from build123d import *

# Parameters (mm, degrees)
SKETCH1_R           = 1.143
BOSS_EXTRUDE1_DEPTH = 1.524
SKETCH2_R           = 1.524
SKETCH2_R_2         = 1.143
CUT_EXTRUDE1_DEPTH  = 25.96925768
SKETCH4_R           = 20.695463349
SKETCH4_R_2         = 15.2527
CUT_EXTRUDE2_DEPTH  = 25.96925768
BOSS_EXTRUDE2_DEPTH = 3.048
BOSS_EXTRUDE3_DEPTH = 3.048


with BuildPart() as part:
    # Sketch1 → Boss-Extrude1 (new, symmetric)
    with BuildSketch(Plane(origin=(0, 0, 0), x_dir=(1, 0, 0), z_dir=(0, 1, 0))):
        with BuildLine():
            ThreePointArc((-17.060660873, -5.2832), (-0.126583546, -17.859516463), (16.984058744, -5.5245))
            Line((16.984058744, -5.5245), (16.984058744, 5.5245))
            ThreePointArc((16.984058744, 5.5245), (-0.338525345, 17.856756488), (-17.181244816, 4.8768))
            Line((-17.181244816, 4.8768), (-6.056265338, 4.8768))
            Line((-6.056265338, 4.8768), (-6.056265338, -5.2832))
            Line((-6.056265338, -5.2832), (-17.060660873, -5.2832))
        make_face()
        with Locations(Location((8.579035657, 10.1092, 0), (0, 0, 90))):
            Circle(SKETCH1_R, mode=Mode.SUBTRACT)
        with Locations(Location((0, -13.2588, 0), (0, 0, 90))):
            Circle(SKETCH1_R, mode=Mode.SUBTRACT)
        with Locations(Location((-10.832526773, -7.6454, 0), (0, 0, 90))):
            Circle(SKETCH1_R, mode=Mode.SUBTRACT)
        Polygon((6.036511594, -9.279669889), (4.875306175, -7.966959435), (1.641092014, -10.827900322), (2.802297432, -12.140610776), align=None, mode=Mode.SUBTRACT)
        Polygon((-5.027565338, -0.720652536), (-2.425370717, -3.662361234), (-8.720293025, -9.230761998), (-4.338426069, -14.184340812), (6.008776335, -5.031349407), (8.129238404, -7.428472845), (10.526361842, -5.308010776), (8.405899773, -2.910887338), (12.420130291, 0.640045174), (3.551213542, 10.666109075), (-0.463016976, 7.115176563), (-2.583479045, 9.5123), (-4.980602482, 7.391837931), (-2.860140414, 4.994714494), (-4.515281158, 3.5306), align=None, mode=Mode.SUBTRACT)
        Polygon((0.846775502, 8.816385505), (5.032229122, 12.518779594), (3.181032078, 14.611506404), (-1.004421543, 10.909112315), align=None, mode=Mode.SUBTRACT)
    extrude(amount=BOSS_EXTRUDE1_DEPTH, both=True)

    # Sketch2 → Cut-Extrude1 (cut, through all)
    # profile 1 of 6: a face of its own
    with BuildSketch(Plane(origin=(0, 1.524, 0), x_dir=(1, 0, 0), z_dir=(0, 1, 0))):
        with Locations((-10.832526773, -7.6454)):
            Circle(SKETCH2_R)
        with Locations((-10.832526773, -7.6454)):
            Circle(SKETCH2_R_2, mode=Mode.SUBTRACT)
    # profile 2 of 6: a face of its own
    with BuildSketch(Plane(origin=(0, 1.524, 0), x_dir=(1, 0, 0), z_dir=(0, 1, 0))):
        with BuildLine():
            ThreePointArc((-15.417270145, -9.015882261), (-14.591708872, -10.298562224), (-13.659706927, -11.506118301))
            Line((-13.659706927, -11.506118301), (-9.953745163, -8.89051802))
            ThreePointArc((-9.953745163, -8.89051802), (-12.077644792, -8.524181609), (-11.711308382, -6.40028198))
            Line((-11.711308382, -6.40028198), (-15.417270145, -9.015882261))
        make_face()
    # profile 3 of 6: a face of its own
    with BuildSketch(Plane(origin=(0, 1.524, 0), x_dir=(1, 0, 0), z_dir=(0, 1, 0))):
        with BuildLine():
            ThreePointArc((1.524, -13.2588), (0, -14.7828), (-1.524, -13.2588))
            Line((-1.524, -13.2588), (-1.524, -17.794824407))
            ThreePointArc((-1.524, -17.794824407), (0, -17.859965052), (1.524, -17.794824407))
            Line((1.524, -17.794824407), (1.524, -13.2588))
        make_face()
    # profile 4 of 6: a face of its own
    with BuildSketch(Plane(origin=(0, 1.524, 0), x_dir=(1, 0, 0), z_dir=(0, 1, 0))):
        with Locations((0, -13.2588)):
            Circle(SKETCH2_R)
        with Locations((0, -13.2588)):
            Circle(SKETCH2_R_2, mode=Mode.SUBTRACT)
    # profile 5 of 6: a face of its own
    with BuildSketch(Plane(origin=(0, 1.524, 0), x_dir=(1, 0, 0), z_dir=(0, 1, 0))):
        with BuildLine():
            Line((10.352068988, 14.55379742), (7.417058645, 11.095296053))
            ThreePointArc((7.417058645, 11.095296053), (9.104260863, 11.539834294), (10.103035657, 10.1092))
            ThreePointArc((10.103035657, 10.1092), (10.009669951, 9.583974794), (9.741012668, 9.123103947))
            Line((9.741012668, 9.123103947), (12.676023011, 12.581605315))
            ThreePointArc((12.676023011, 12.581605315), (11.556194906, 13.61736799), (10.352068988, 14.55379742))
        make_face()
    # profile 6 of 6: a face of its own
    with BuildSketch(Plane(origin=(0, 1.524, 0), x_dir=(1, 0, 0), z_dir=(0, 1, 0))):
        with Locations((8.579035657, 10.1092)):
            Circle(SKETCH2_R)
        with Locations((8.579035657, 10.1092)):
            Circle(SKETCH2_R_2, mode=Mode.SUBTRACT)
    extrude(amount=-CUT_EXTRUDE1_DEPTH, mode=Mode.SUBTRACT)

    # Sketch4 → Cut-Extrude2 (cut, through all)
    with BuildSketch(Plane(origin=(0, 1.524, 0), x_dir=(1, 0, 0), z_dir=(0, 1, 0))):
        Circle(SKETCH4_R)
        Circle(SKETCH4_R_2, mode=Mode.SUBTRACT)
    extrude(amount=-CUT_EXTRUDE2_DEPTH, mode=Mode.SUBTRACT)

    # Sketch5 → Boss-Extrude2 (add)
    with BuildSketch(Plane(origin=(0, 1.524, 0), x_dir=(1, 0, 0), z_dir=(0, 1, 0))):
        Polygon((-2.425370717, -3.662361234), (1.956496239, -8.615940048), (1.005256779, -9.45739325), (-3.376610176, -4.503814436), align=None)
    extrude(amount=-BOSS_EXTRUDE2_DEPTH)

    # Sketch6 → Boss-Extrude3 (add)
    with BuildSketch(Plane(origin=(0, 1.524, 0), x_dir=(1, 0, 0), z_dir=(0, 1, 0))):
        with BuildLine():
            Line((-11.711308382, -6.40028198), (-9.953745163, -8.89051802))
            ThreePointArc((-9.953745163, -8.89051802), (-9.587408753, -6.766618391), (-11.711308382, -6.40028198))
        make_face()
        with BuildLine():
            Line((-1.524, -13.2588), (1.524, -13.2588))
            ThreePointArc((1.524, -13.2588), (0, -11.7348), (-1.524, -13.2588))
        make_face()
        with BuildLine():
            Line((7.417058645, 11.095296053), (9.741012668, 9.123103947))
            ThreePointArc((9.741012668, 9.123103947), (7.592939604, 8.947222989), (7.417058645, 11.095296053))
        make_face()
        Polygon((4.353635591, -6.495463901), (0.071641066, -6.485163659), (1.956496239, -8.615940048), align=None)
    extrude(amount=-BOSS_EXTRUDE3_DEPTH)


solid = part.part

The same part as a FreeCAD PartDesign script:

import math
import FreeCAD as App
import Part
import Sketcher

V = App.Vector
Q = App.Units.Quantity


def add_polygon(sketch, points):
    """Adds a closed chain of lines whose ends are joined by coincident constraints."""
    first, n = sketch.GeometryCount, len(points)
    for a, b in zip(points, points[1:] + points[:1]):
        sketch.addGeometry(Part.LineSegment(App.Vector(*a, 0), App.Vector(*b, 0)), False)
    for i in range(n):
        sketch.addConstraint(Sketcher.Constraint("Coincident", first + i, 2, first + (i + 1) % n, 1))

doc = App.newDocument("Part")
body = doc.addObject("PartDesign::Body", "Body")

# Sketch on XZ plane
sketch1 = doc.addObject("Sketcher::SketchObject", "Sketch")
body.addObject(sketch1)
sketch1.AttachmentSupport = (doc.XZ_Plane, [""])
sketch1.MapMode = "FlatFace"
sketch1.addGeometry(Part.ArcOfCircle(Part.Circle(V(0, 0, 0), V(0, 0, 1), 17.9), math.radians(18), math.radians(163)), False)  # 0
sketch1.addGeometry(Part.LineSegment(V(17, 5.5, 0), V(17, -5.5, 0)), False)  # 1
sketch1.addGeometry(Part.ArcOfCircle(Part.Circle(V(0, 0, 0), V(0, 0, 1), 17.9), math.radians(-164), math.radians(-18)), False)  # 2
sketch1.addGeometry(Part.LineSegment(V(-17.2, -4.9, 0), V(-6.1, -4.9, 0)), False)  # 3
sketch1.addGeometry(Part.LineSegment(V(-6.1, -4.9, 0), V(-6.1, 5.3, 0)), False)  # 4
sketch1.addGeometry(Part.LineSegment(V(-6.1, 5.3, 0), V(-17.1, 5.3, 0)), False)  # 5
sketch1.addGeometry(Part.Circle(V(-10.8, 7.6, 0), V(0, 0, 1), 1.1), False)  # 6
sketch1.addGeometry(Part.Circle(V(0, 13.3, 0), V(0, 0, 1), 1.1), False)  # 7
add_polygon(sketch1, [(4.9, 8), (6, 9.3), (2.8, 12.1), (1.6, 10.8)])  # lines 8-11
add_polygon(sketch1, [(-2.4, 3.7), (-5, 0.7), (-4.5, -3.5), (-2.9, -5), (-5, -7.4), (-2.6, -9.5), (-0.5, -7.1), (3.6, -10.7), (12.4, -0.6), (8.4, 2.9), (10.5, 5.3), (8.1, 7.4), (6, 5), (-4.3, 14.2), (-8.7, 9.2)])  # lines 12-26
add_polygon(sketch1, [(5, -12.5), (0.8, -8.8), (-1, -10.9), (3.2, -14.6)])  # lines 27-30
sketch1.addGeometry(Part.Circle(V(8.6, -10.1, 0), V(0, 0, 1), 1.1), False)  # 31
sketch1.addConstraint(Sketcher.Constraint("Coincident", 0, 1, 1, 1))
sketch1.addConstraint(Sketcher.Constraint("Coincident", 1, 2, 2, 2))
sketch1.addConstraint(Sketcher.Constraint("Coincident", 2, 1, 3, 1))
sketch1.addConstraint(Sketcher.Constraint("Coincident", 3, 2, 4, 1))
sketch1.addConstraint(Sketcher.Constraint("Coincident", 4, 2, 5, 1))
sketch1.addConstraint(Sketcher.Constraint("Coincident", 5, 2, 0, 2))
sketch1.addConstraint(Sketcher.Constraint("Vertical", 1))
sketch1.addConstraint(Sketcher.Constraint("Horizontal", 3))
sketch1.addConstraint(Sketcher.Constraint("Vertical", 4))
sketch1.addConstraint(Sketcher.Constraint("Horizontal", 5))
sketch1.addConstraint(Sketcher.Constraint("Coincident", 0, 3, -1, 1))
sketch1.addConstraint(Sketcher.Constraint("Coincident", 2, 3, -1, 1))
sketch1.addConstraint(Sketcher.Constraint("Equal", 0, 2))
sketch1.addConstraint(Sketcher.Constraint("Equal", 6, 7))
sketch1.addConstraint(Sketcher.Constraint("Equal", 7, 31))
sketch1.addConstraint(Sketcher.Constraint("PointOnObject", 7, 3, -2))
sketch1.addConstraint(Sketcher.Constraint("Perpendicular", 8, 9))
sketch1.addConstraint(Sketcher.Constraint("Perpendicular", 9, 10))
sketch1.addConstraint(Sketcher.Constraint("Perpendicular", 10, 11))
sketch1.addConstraint(Sketcher.Constraint("Perpendicular", 11, 12))
sketch1.addConstraint(Sketcher.Constraint("Perpendicular", 12, 14))
sketch1.addConstraint(Sketcher.Constraint("Perpendicular", 14, 15))
sketch1.addConstraint(Sketcher.Constraint("Perpendicular", 15, 16))
sketch1.addConstraint(Sketcher.Constraint("Perpendicular", 16, 17))
sketch1.addConstraint(Sketcher.Constraint("Perpendicular", 17, 18))
sketch1.addConstraint(Sketcher.Constraint("Perpendicular", 18, 19))
sketch1.addConstraint(Sketcher.Constraint("Perpendicular", 19, 20))
sketch1.addConstraint(Sketcher.Constraint("Perpendicular", 20, 21))
sketch1.addConstraint(Sketcher.Constraint("Perpendicular", 21, 22))
sketch1.addConstraint(Sketcher.Constraint("Perpendicular", 22, 23))
sketch1.addConstraint(Sketcher.Constraint("Perpendicular", 23, 24))
sketch1.addConstraint(Sketcher.Constraint("Perpendicular", 24, 25))
sketch1.addConstraint(Sketcher.Constraint("Perpendicular", 25, 26))
sketch1.addConstraint(Sketcher.Constraint("Parallel", 26, 27))
sketch1.addConstraint(Sketcher.Constraint("Perpendicular", 27, 28))
sketch1.addConstraint(Sketcher.Constraint("Perpendicular", 28, 29))
sketch1.addConstraint(Sketcher.Constraint("Perpendicular", 29, 30))
sketch1.addConstraint(Sketcher.Constraint("Equal", 15, 16))
sketch1.addConstraint(Sketcher.Constraint("Equal", 16, 17))
sketch1.addConstraint(Sketcher.Constraint("Equal", 18, 20))
sketch1.addConstraint(Sketcher.Constraint("Equal", 17, 21))
sketch1.addConstraint(Sketcher.Constraint("Equal", 21, 22))
sketch1.addConstraint(Sketcher.Constraint("Equal", 22, 23))
sketch1.addConstraint(Sketcher.Constraint("Diameter", 6, Q("0.09 in")))
sketch1.addConstraint(Sketcher.Constraint("DistanceY", 4, 1, 4, 2, Q("0.4 in")))
sketch1.addConstraint(Sketcher.Constraint("Distance", 9, Q("0.17 in")))
sketch1.addConstraint(Sketcher.Constraint("Distance", 27, Q("0.22 in")))
sketch1.addConstraint(Sketcher.Constraint("Distance", 28, Q("0.11 in")))
sketch1.addConstraint(Sketcher.Constraint("DistanceY", 1, 2, 1, 1, Q("0.435 in")))
sketch1.addConstraint(Sketcher.Constraint("DistanceY", 31, 3, 7, 3, Q("0.92 in")))
sketch1.addConstraint(Sketcher.Constraint("Distance", 8, Q("0.069 in")))
sketch1.addConstraint(Sketcher.Constraint("Distance", 15, Q("0.126 in")))
sketch1.addConstraint(Sketcher.Constraint("Distance", 18, Q("0.211 in")))
sketch1.addConstraint(Sketcher.Constraint("Distance", 19, Q("0.527 in")))
sketch1.addConstraint(Sketcher.Constraint("DistanceY", -1, 1, 6, 3, Q("0.301 in")))
sketch1.addConstraint(Sketcher.Constraint("DistanceY", -1, 1, 7, 3, Q("0.522 in")))
sketch1.addConstraint(Sketcher.Constraint("DistanceY", 2, 1, -1, 1, Q("0.192 in")))
sketch1.addConstraint(Sketcher.Constraint("DistanceY", 13, 2, -1, 1, Q("0.139 in")))
sketch1.addConstraint(Sketcher.Constraint("DistanceY", 16, 2, -1, 1, Q("0.3745 in")))
sketch1.addConstraint(Sketcher.Constraint("Radius", 0, Q("17.859965 mm")))
sketch1.addConstraint(Sketcher.Constraint("DistanceX", 4, 2, 12, 2, Q("0.0405 in")))
sketch1.addConstraint(Sketcher.Constraint("DistanceX", 27, 2, 29, 2, Q("0.0918999 in")))
sketch1.addConstraint(Sketcher.Constraint("DistanceX", 3, 1, 3, 2, Q("11.124979 mm")))
sketch1.addConstraint(Sketcher.Constraint("DistanceY", -1, 1, 10, 2, Q("10.8279 mm")))
sketch1.addConstraint(Sketcher.Constraint("DistanceX", -1, 1, 20, 2, Q("8.4059 mm")))
sketch1.addConstraint(Sketcher.Constraint("DistanceX", 3, 2, 31, 3, Q("14.635301 mm")))
sketch1.addConstraint(Sketcher.Constraint("DistanceX", 6, 3, 24, 2, Q("6.494101 mm")))
sketch1.addConstraint(Sketcher.Constraint("DistanceX", -1, 1, 8, 2, Q("6.036512 mm")))
sketch1.addConstraint(Sketcher.Constraint("DistanceY", -1, 1, 24, 2, Q("14.184341 mm")))
sketch1.addConstraint(Sketcher.Constraint("DistanceY", -1, 1, 25, 2, Q("9.230762 mm")))
sketch1.addConstraint(Sketcher.Constraint("DistanceX", 26, 2, -1, 1, Q("2.425371 mm")))
sketch1.addConstraint(Sketcher.Constraint("DistanceX", 28, 2, -1, 1, Q("1.004422 mm")))
sketch1.addConstraint(Sketcher.Constraint("DistanceY", 30, 2, -1, 1, Q("12.51878 mm")))
pad1 = doc.addObject("PartDesign::Pad", "Pad")
body.addObject(pad1)
pad1.Profile = sketch1
pad1.Length = Q("0.12 in")
pad1.Midplane = True

# Sketch on XZ plane
sketch2 = doc.addObject("Sketcher::SketchObject", "Sketch001")
body.addObject(sketch2)
sketch2.AttachmentSupport = (doc.XZ_Plane, [""])
sketch2.MapMode = "FlatFace"
sketch2.AttachmentOffset = App.Placement(V(0, 0, -0.06 * 25.4), App.Rotation())
sketch2.addGeometry(Part.LineSegment(V(-11.7, 6.4, 0), V(-15.4, 9, 0)), False)
sketch2.addGeometry(Part.ArcOfCircle(Part.Circle(V(0, 0, 0), V(0, 0, 1), 17.9), math.radians(139.89), math.radians(149.68)), False)
sketch2.addGeometry(Part.LineSegment(V(-13.7, 11.5, 0), V(-10, 8.9, 0)), False)
sketch2.addGeometry(Part.ArcOfCircle(Part.Circle(V(-10.8, 7.6, 0), V(0, 0, 1), 1.5), math.radians(-125), math.radians(55)), False)
sketch2.addGeometry(Part.Circle(V(-10.8, 7.6, 0), V(0, 0, 1), 1.1), False)
sketch2.addGeometry(Part.LineSegment(V(-1.5, 13.3, 0), V(-1.5, 17.8, 0)), False)
sketch2.addGeometry(Part.ArcOfCircle(Part.Circle(V(0, 0, 0), V(0, 0, 1), 17.9), math.radians(85.1), math.radians(94.9)), False)
sketch2.addGeometry(Part.LineSegment(V(1.5, 17.8, 0), V(1.5, 13.3, 0)), False)
sketch2.addGeometry(Part.ArcOfCircle(Part.Circle(V(0, 13.3, 0), V(0, 0, 1), 1.5), math.radians(180), math.radians(360)), False)
sketch2.addGeometry(Part.Circle(V(0, 13.3, 0), V(0, 0, 1), 1.1), False)
sketch2.addGeometry(Part.LineSegment(V(10.4, -14.6, 0), V(7.4, -11.1, 0)), False)
sketch2.addGeometry(Part.ArcOfCircle(Part.Circle(V(8.6, -10.1, 0), V(0, 0, 1), 1.5), math.radians(40), math.radians(220)), False)
sketch2.addGeometry(Part.LineSegment(V(9.7, -9.1, 0), V(12.7, -12.6, 0)), False)
sketch2.addGeometry(Part.ArcOfCircle(Part.Circle(V(0, 0, 0), V(0, 0, 1), 17.9), math.radians(-54.58), math.radians(-44.79)), False)
sketch2.addGeometry(Part.Circle(V(8.6, -10.1, 0), V(0, 0, 1), 1.1), False)
sketch2.addConstraint(Sketcher.Constraint("Coincident", 0, 2, 1, 2))
sketch2.addConstraint(Sketcher.Constraint("Coincident", 1, 1, 2, 1))
sketch2.addConstraint(Sketcher.Constraint("Tangent", 2, 2, 3, 2))
sketch2.addConstraint(Sketcher.Constraint("Tangent", 3, 1, 0, 1))
sketch2.addConstraint(Sketcher.Constraint("Coincident", 5, 2, 6, 2))
sketch2.addConstraint(Sketcher.Constraint("Coincident", 6, 1, 7, 1))
sketch2.addConstraint(Sketcher.Constraint("Tangent", 7, 2, 8, 2))
sketch2.addConstraint(Sketcher.Constraint("Tangent", 8, 1, 5, 1))
sketch2.addConstraint(Sketcher.Constraint("Tangent", 10, 2, 11, 2))
sketch2.addConstraint(Sketcher.Constraint("Tangent", 11, 1, 12, 1))
sketch2.addConstraint(Sketcher.Constraint("Coincident", 12, 2, 13, 2))
sketch2.addConstraint(Sketcher.Constraint("Coincident", 13, 1, 10, 1))
sketch2.addConstraint(Sketcher.Constraint("Vertical", 5))
sketch2.addConstraint(Sketcher.Constraint("Vertical", 7))
sketch2.addConstraint(Sketcher.Constraint("Coincident", 1, 3, -1, 1))
sketch2.addConstraint(Sketcher.Constraint("Coincident", 6, 3, -1, 1))
sketch2.addConstraint(Sketcher.Constraint("Coincident", 13, 3, -1, 1))
sketch2.addConstraint(Sketcher.Constraint("Coincident", 4, 3, 3, 3))
sketch2.addConstraint(Sketcher.Constraint("Coincident", 9, 3, 8, 3))
sketch2.addConstraint(Sketcher.Constraint("Coincident", 14, 3, 11, 3))
sketch2.addConstraint(Sketcher.Constraint("Equal", 1, 6))
sketch2.addConstraint(Sketcher.Constraint("Equal", 3, 8))
sketch2.addConstraint(Sketcher.Constraint("Equal", 4, 9))
sketch2.addConstraint(Sketcher.Constraint("Equal", 8, 11))
sketch2.addConstraint(Sketcher.Constraint("Equal", 6, 13))
sketch2.addConstraint(Sketcher.Constraint("Equal", 9, 14))
sketch2.addConstraint(Sketcher.Constraint("PointOnObject", 8, 3, -2))
sketch2.addConstraint(Sketcher.Constraint("Parallel", 0, 2))
sketch2.addConstraint(Sketcher.Constraint("Parallel", 10, 12))
sketch2.addConstraint(Sketcher.Constraint("Equal", 0, 2))
sketch2.addConstraint(Sketcher.Constraint("Equal", 2, 10))
sketch2.addConstraint(Sketcher.Constraint("Equal", 10, 12))
sketch2.addConstraint(Sketcher.Constraint("Diameter", 4, Q("0.09 in")))
sketch2.addConstraint(Sketcher.Constraint("Radius", 3, Q("0.06 in")))
sketch2.addConstraint(Sketcher.Constraint("DistanceY", 11, 3, 8, 3, Q("0.92 in")))
sketch2.addConstraint(Sketcher.Constraint("DistanceY", -1, 1, 3, 3, Q("0.301 in")))
sketch2.addConstraint(Sketcher.Constraint("DistanceY", -1, 1, 8, 3, Q("0.522 in")))
sketch2.addConstraint(Sketcher.Constraint("Radius", 1, Q("17.859965 mm")))
sketch2.addConstraint(Sketcher.Constraint("DistanceY", 2, 2, 1, 1, Q("2.6156 mm")))
pocket1 = doc.addObject("PartDesign::Pocket", "Pocket")
body.addObject(pocket1)
pocket1.Profile = sketch2
pocket1.Length = 25.969258
pocket1.Reversed = True

# Sketch on XZ plane
sketch3 = doc.addObject("Sketcher::SketchObject", "Sketch002")
body.addObject(sketch3)
sketch3.AttachmentSupport = (doc.XZ_Plane, [""])
sketch3.MapMode = "FlatFace"
sketch3.AttachmentOffset = App.Placement(V(0, 0, -0.06 * 25.4), App.Rotation())
sketch3.addGeometry(Part.Circle(V(0, 0, 0), V(0, 0, 1), 21), False)
sketch3.addGeometry(Part.Circle(V(0, 0, 0), V(0, 0, 1), 15), False)
sketch3.addConstraint(Sketcher.Constraint("Coincident", 0, 3, -1, 1))
sketch3.addConstraint(Sketcher.Constraint("Coincident", 1, 3, -1, 1))
sketch3.addConstraint(Sketcher.Constraint("Diameter", 1, Q("1.201 in")))
sketch3.addConstraint(Sketcher.Constraint("Diameter", 0, Q("41.390927 mm")))
pocket2 = doc.addObject("PartDesign::Pocket", "Pocket001")
body.addObject(pocket2)
pocket2.Profile = sketch3
pocket2.Type = "ThroughAll"
pocket2.Reversed = True

# Sketch on XZ plane
sketch4 = doc.addObject("Sketcher::SketchObject", "Sketch003")
body.addObject(sketch4)
sketch4.AttachmentSupport = (doc.XZ_Plane, [""])
sketch4.MapMode = "FlatFace"
sketch4.AttachmentOffset = App.Placement(V(0, 0, -0.06 * 25.4), App.Rotation())
add_polygon(sketch4, [(2, 8.6), (-2.4, 3.7), (-3.4, 4.5), (1, 9.5)])  # lines 0-3
sketch4.addConstraint(Sketcher.Constraint("Perpendicular", 0, 1))
sketch4.addConstraint(Sketcher.Constraint("Perpendicular", 1, 2))
sketch4.addConstraint(Sketcher.Constraint("Perpendicular", 2, 3))
sketch4.addConstraint(Sketcher.Constraint("Distance", 1, Q("0.05 in")))
sketch4.addConstraint(Sketcher.Constraint("DistanceX", 0, 2, -1, 1, Q("2.425371 mm")))
sketch4.addConstraint(Sketcher.Constraint("DistanceY", -1, 1, 0, 2, Q("3.662361 mm")))
sketch4.addConstraint(Sketcher.Constraint("DistanceX", 1, 2, -1, 1, Q("3.37661 mm")))
sketch4.addConstraint(Sketcher.Constraint("DistanceY", -1, 1, 3, 2, Q("8.61594 mm")))
pad2 = doc.addObject("PartDesign::Pad", "Pad001")
body.addObject(pad2)
pad2.Profile = sketch4
pad2.Length = Q("0.12 in")

# Sketch on XZ plane
sketch5 = doc.addObject("Sketcher::SketchObject", "Sketch004")
body.addObject(sketch5)
sketch5.AttachmentSupport = (doc.XZ_Plane, [""])
sketch5.MapMode = "FlatFace"
sketch5.AttachmentOffset = App.Placement(V(0, 0, -0.06 * 25.4), App.Rotation())
sketch5.addGeometry(Part.LineSegment(V(-11.7, 6.4, 0), V(-10, 8.9, 0)), False)  # 0
sketch5.addGeometry(Part.ArcOfCircle(Part.Circle(V(-10.8, 7.6, 0), V(0, 0, 1), 1.5), math.radians(-125), math.radians(55)), False)  # 1
sketch5.addGeometry(Part.LineSegment(V(-1.5, 13.3, 0), V(1.5, 13.3, 0)), False)  # 2
sketch5.addGeometry(Part.ArcOfCircle(Part.Circle(V(0, 13.3, 0), V(0, 0, 1), 1.5), math.radians(180), math.radians(360)), False)  # 3
sketch5.addGeometry(Part.LineSegment(V(9.7, -9.1, 0), V(7.4, -11.1, 0)), False)  # 4
sketch5.addGeometry(Part.ArcOfCircle(Part.Circle(V(8.6, -10.1, 0), V(0, 0, 1), 1.5), math.radians(40), math.radians(220)), False)  # 5
add_polygon(sketch5, [(4.4, 6.5), (0.1, 6.5), (2, 8.6)])  # lines 6-8
sketch5.addConstraint(Sketcher.Constraint("Coincident", 0, 1, 1, 1))
sketch5.addConstraint(Sketcher.Constraint("Coincident", 1, 2, 0, 2))
sketch5.addConstraint(Sketcher.Constraint("Coincident", 2, 1, 3, 1))
sketch5.addConstraint(Sketcher.Constraint("Coincident", 3, 2, 2, 2))
sketch5.addConstraint(Sketcher.Constraint("Coincident", 4, 1, 5, 1))
sketch5.addConstraint(Sketcher.Constraint("Coincident", 5, 2, 4, 2))
sketch5.addConstraint(Sketcher.Constraint("Horizontal", 2))
sketch5.addConstraint(Sketcher.Constraint("Equal", 1, 3))
sketch5.addConstraint(Sketcher.Constraint("Equal", 3, 5))
sketch5.addConstraint(Sketcher.Constraint("PointOnObject", 3, 3, -2))
sketch5.addConstraint(Sketcher.Constraint("Perpendicular", 7, 8))
sketch5.addConstraint(Sketcher.Constraint("Horizontal", 3, 3, 2, 1))
sketch5.addConstraint(Sketcher.Constraint("Radius", 1, Q("0.06 in")))
sketch5.addConstraint(Sketcher.Constraint("DistanceY", 5, 3, 3, 3, Q("0.92 in")))
sketch5.addConstraint(Sketcher.Constraint("Distance", 7, Q("0.112 in")))
sketch5.addConstraint(Sketcher.Constraint("DistanceY", -1, 1, 1, 3, Q("0.301 in")))
sketch5.addConstraint(Sketcher.Constraint("DistanceY", -1, 1, 3, 3, Q("0.522 in")))
sketch5.addConstraint(Sketcher.Constraint("DistanceY", 6, 2, 8, 2, Q("0.0103 mm")))
sketch5.addConstraint(Sketcher.Constraint("Distance", 8, Q("3.200421 mm")))
sketch5.addConstraint(Sketcher.Constraint("DistanceX", 0, 1, -1, 1, Q("11.711308 mm")))
sketch5.addConstraint(Sketcher.Constraint("DistanceY", -1, 1, 0, 1, Q("6.400282 mm")))
sketch5.addConstraint(Sketcher.Constraint("DistanceY", -1, 1, 1, 2, Q("8.890518 mm")))
sketch5.addConstraint(Sketcher.Constraint("DistanceX", -1, 1, 5, 2, Q("7.417059 mm")))
sketch5.addConstraint(Sketcher.Constraint("DistanceX", -1, 1, 6, 2, Q("0.071641 mm")))
sketch5.addConstraint(Sketcher.Constraint("DistanceY", -1, 1, 7, 2, Q("8.61594 mm")))
sketch5.addConstraint(Sketcher.Constraint("DistanceX", 1, 2, 5, 3, Q("18.532781 mm")))
sketch5.addConstraint(Sketcher.Constraint("DistanceX", 0, 1, 4, 1, Q("21.452321 mm")))
pad3 = doc.addObject("PartDesign::Pad", "Pad002")
body.addObject(pad3)
pad3.Profile = sketch5
pad3.Length = Q("0.12 in")

doc.recompute()
